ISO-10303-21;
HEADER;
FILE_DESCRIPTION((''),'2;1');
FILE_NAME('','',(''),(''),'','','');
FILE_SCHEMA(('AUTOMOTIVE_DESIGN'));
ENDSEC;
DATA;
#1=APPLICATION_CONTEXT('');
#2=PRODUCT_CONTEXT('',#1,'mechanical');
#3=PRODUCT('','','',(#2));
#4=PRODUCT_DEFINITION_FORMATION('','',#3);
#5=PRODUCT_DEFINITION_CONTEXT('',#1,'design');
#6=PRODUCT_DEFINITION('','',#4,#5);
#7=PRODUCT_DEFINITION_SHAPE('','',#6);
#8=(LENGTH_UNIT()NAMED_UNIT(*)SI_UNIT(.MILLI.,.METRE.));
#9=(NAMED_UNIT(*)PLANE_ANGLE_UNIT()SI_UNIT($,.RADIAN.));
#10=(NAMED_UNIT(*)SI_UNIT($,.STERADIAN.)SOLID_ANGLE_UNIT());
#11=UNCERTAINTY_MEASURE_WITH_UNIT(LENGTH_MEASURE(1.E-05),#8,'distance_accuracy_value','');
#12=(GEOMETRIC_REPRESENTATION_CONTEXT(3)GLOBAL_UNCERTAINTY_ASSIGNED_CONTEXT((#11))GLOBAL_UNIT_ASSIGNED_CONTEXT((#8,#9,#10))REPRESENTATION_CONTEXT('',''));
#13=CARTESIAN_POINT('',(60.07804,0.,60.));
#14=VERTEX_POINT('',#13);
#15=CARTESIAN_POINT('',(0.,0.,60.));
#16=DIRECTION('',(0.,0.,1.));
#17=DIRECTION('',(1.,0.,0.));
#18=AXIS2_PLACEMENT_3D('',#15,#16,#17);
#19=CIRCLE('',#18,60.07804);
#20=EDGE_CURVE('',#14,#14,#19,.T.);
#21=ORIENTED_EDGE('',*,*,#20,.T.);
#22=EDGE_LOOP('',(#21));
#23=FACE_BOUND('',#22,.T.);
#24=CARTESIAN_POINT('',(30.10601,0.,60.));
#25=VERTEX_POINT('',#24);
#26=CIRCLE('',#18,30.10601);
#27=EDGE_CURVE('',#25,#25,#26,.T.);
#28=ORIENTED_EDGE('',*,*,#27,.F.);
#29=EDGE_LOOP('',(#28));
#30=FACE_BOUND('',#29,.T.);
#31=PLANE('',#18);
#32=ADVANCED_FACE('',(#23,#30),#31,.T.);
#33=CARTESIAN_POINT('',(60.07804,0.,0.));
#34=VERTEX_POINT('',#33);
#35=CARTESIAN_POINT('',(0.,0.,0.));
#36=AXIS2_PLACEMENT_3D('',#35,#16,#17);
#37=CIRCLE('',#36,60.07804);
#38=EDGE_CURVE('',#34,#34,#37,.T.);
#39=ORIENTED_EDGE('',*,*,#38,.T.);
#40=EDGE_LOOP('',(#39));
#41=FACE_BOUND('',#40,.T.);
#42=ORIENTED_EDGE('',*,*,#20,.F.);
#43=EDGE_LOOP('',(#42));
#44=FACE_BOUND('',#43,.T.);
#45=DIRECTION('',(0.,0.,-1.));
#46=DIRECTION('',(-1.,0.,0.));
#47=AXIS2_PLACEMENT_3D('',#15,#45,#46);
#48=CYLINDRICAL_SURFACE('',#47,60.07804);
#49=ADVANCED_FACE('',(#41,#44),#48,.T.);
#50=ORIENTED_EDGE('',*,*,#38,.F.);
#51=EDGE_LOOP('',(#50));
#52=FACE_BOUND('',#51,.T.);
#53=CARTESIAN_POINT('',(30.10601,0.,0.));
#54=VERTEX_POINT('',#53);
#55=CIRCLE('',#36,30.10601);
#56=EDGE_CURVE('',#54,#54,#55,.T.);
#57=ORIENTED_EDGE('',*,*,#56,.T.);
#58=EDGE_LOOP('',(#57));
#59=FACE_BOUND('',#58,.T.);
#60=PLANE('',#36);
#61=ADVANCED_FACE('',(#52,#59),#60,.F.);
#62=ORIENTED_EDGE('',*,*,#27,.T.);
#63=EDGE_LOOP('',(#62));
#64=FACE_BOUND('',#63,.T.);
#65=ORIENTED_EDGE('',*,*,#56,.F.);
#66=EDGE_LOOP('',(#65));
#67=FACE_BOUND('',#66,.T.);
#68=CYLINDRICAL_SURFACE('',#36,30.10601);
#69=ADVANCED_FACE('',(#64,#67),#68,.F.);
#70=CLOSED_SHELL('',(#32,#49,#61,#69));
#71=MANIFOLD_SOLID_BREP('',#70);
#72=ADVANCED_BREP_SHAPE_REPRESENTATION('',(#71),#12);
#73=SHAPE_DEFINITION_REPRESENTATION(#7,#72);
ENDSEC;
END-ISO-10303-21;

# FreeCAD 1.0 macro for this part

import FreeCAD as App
import Part
import Sketcher

V = App.Vector
Q = App.Units.Quantity

doc = App.newDocument("Part")
body = doc.addObject("PartDesign::Body", "Body")

# Sketch on XY plane
sketch1 = body.newObject("Sketcher::SketchObject", "Sketch")
sketch1.AttachmentSupport = (doc.getObject("XY_Plane"), [""])
sketch1.MapMode = "FlatFace"
sketch1.addGeometry(Part.Circle(V(0, 0, 0), V(0, 0, 1), 60), False)
sketch1.addConstraint([
    Sketcher.Constraint("Coincident", 0, 3, -1, 1),
    Sketcher.Constraint("Diameter", 0, Q("120.15608 mm")),
])
pad1 = body.newObject("PartDesign::Pad", "Pad")
pad1.Profile = sketch1
pad1.Length = 60

# Sketch on XY plane
sketch2 = body.newObject("Sketcher::SketchObject", "Sketch001")
sketch2.AttachmentSupport = (doc.getObject("XY_Plane"), [""])
sketch2.MapMode = "FlatFace"
sketch2.AttachmentOffset = App.Placement(V(0, 0, 60), App.Rotation())
sketch2.addGeometry(Part.Circle(V(0, 0, 0), V(0, 0, 1), 30), False)
sketch2.addConstraint([
    Sketcher.Constraint("Coincident", 0, 3, -1, 1),
    Sketcher.Constraint("Diameter", 0, Q("60.21202 mm")),
])
pocket1 = body.newObject("PartDesign::Pocket", "Pocket")
pocket1.Profile = sketch2
pocket1.Length = 60

doc.recompute()
